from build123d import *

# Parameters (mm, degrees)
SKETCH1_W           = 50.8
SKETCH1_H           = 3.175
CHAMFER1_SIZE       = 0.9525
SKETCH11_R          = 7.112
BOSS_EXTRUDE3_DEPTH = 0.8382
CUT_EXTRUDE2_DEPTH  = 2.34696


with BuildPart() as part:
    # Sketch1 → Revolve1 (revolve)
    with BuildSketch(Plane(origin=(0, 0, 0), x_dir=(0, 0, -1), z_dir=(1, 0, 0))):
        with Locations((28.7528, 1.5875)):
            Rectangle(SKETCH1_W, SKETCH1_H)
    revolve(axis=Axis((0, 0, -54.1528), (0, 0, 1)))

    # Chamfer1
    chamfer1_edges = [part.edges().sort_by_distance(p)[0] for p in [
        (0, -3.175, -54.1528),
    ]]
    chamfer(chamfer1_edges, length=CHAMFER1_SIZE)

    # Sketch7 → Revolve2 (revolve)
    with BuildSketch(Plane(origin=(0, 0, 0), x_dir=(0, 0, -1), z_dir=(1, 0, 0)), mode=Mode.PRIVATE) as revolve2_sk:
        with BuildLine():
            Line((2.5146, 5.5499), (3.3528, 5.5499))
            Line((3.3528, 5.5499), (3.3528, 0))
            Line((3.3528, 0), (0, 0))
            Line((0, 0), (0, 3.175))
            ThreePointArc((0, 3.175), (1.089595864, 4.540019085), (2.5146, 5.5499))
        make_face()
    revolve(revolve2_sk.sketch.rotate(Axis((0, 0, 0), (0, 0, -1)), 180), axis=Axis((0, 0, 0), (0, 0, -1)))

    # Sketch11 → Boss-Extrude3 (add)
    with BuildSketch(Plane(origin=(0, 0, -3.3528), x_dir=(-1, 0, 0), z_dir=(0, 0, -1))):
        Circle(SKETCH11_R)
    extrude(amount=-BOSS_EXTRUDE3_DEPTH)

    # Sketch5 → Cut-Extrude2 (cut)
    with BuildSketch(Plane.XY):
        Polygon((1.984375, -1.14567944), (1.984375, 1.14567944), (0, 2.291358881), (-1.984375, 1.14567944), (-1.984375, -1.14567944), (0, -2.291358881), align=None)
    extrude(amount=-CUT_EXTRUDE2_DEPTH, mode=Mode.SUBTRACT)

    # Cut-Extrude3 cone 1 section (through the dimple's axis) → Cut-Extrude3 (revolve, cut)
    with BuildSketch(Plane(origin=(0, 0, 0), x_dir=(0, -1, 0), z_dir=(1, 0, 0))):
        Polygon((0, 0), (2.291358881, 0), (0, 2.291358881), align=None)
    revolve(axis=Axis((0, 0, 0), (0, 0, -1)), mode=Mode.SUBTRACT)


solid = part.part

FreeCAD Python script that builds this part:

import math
import FreeCAD as App
import Part
import Sketcher
from FreeCAD import Vector
Q = App.Units.Quantity


def edges_at(feature, points):
    """Names of the edges that pass closest to the given points."""
    edges = feature.Shape.Edges
    near = lambda p: min(range(len(edges)), key=lambda i: edges[i].distToShape(Part.Vertex(*p))[0])
    return sorted({f"Edge{near(p) + 1}" for p in points})

doc = App.newDocument("Part")
body = doc.addObject("PartDesign::Body", "Body")

# Sketch on YZ plane
sketch1 = body.newObject("Sketcher::SketchObject", "Sketch")
sketch1.AttachmentSupport = (doc.getObject("YZ_Plane"), [""])
sketch1.MapMode = "FlatFace"
sketch1.addGeometry(Part.LineSegment(Vector(3.2, -3.4, 0), Vector(0, -3.4, 0)), False)
sketch1.addGeometry(Part.LineSegment(Vector(0, -3.4, 0), Vector(0, -54.2, 0)), False)
sketch1.addGeometry(Part.LineSegment(Vector(0, -54.2, 0), Vector(3.2, -54.2, 0)), False)
sketch1.addGeometry(Part.LineSegment(Vector(3.2, -54.2, 0), Vector(3.2, -3.4, 0)), False)
sketch1.addConstraint(Sketcher.Constraint("Coincident", 0, 2, 1, 1))
sketch1.addConstraint(Sketcher.Constraint("Coincident", 1, 2, 2, 1))
sketch1.addConstraint(Sketcher.Constraint("Coincident", 2, 2, 3, 1))
sketch1.addConstraint(Sketcher.Constraint("Coincident", 3, 2, 0, 1))
sketch1.addConstraint(Sketcher.Constraint("Horizontal", 0))
sketch1.addConstraint(Sketcher.Constraint("Vertical", 1))
sketch1.addConstraint(Sketcher.Constraint("Horizontal", 2))
sketch1.addConstraint(Sketcher.Constraint("Vertical", 3))
sketch1.addConstraint(Sketcher.Constraint("PointOnObject", 0, 2, -2))
sketch1.addConstraint(Sketcher.Constraint("DistanceY", 1, 2, 1, 1, Q("2 in")))
sketch1.addConstraint(Sketcher.Constraint("DistanceX", 0, 2, 0, 1, Q("0.125 in")))
sketch1.addConstraint(Sketcher.Constraint("DistanceY", 0, 2, -1, 1, Q("0.132 in")))
revolution = body.newObject("PartDesign::Revolution", "Revolution")
revolution.Profile = sketch1
revolution.ReferenceAxis = (sketch1, ["V_Axis"])
revolution.Angle = 360
doc.recompute()

chamfer = body.newObject("PartDesign::Chamfer", "Chamfer")
chamfer.Base = (revolution, edges_at(revolution, [(0, -3.175, -54.153)]))
chamfer.Size = Q("0.0375 in")

# Sketch on YZ plane
sketch2 = body.newObject("Sketcher::SketchObject", "Sketch001")
sketch2.AttachmentSupport = (doc.getObject("YZ_Plane"), [""])
sketch2.MapMode = "FlatFace"
sketch2.addGeometry(Part.LineSegment(Vector(5.5, -3.4, 0), Vector(5.5, -2.5, 0)), False)
sketch2.addGeometry(Part.ArcOfCircle(Part.Circle(Vector(0, -5.4, 0), Vector(0, 0, 1), 6.2), math.radians(27), math.radians(59)), False)
sketch2.addGeometry(Part.LineSegment(Vector(3.2, 0, 0), Vector(0, 0, 0)), False)
sketch2.addGeometry(Part.LineSegment(Vector(0, 0, 0), Vector(0, -3.4, 0)), False)
sketch2.addGeometry(Part.LineSegment(Vector(0, -3.4, 0), Vector(5.5, -3.4, 0)), False)
sketch2.addConstraint(Sketcher.Constraint("Coincident", 0, 2, 1, 1))
sketch2.addConstraint(Sketcher.Constraint("Coincident", 1, 2, 2, 1))
sketch2.addConstraint(Sketcher.Constraint("Coincident", 2, 2, 3, 1))
sketch2.addConstraint(Sketcher.Constraint("Coincident", 3, 2, 4, 1))
sketch2.addConstraint(Sketcher.Constraint("Coincident", 4, 2, 0, 1))
sketch2.addConstraint(Sketcher.Constraint("Vertical", 0))
sketch2.addConstraint(Sketcher.Constraint("Horizontal", 2))
sketch2.addConstraint(Sketcher.Constraint("Vertical", 3))
sketch2.addConstraint(Sketcher.Constraint("Horizontal", 4))
sketch2.addConstraint(Sketcher.Constraint("Coincident", 2, 2, -1, 1))
sketch2.addConstraint(Sketcher.Constraint("PointOnObject", 1, 3, -2))
sketch2.addConstraint(Sketcher.Constraint("DistanceX", 2, 2, 2, 1, Q("0.125 in")))
sketch2.addConstraint(Sketcher.Constraint("DistanceY", 0, 1, 0, 2, Q("0.033 in")))
sketch2.addConstraint(Sketcher.Constraint("DistanceY", 3, 2, 3, 1, Q("0.132 in")))
sketch2.addConstraint(Sketcher.Constraint("DistanceX", 4, 1, 4, 2, Q("0.2185 in")))
revolution2 = body.newObject("PartDesign::Revolution", "Revolution001")
revolution2.Profile = sketch2
revolution2.ReferenceAxis = (sketch2, ["V_Axis"])
revolution2.Angle = 360

# Sketch on XY plane
sketch3 = body.newObject("Sketcher::SketchObject", "Sketch002")
sketch3.AttachmentSupport = (doc.getObject("XY_Plane"), [""])
sketch3.MapMode = "FlatFace"
sketch3.AttachmentOffset = App.Placement(Vector(0, 0, -0.132 * 25.4), App.Rotation())
sketch3.addGeometry(Part.Circle(Vector(0, 0, 0), Vector(0, 0, 1), 7), False)
sketch3.addConstraint(Sketcher.Constraint("Coincident", 0, 3, -1, 1))
sketch3.addConstraint(Sketcher.Constraint("Diameter", 0, Q("0.56 in")))
pad1 = body.newObject("PartDesign::Pad", "Pad")
pad1.Profile = sketch3
pad1.Length = Q("0.033 in")

# Sketch on XY plane
sketch4 = body.newObject("Sketcher::SketchObject", "Sketch003")
sketch4.AttachmentSupport = (doc.getObject("XY_Plane"), [""])
sketch4.MapMode = "FlatFace"
sketch4.addGeometry(Part.LineSegment(Vector(2, -1.1, 0), Vector(2, 1.1, 0)), False)
sketch4.addGeometry(Part.LineSegment(Vector(2, 1.1, 0), Vector(0, 2.3, 0)), False)
sketch4.addGeometry(Part.LineSegment(Vector(0, 2.3, 0), Vector(-2, 1.1, 0)), False)
sketch4.addGeometry(Part.LineSegment(Vector(-2, 1.1, 0), Vector(-2, -1.1, 0)), False)
sketch4.addGeometry(Part.LineSegment(Vector(-2, -1.1, 0), Vector(0, -2.3, 0)), False)
sketch4.addGeometry(Part.LineSegment(Vector(0, -2.3, 0), Vector(2, -1.1, 0)), False)
sketch4.addConstraint(Sketcher.Constraint("Coincident", 0, 2, 1, 1))
sketch4.addConstraint(Sketcher.Constraint("Coincident", 1, 2, 2, 1))
sketch4.addConstraint(Sketcher.Constraint("Coincident", 2, 2, 3, 1))
sketch4.addConstraint(Sketcher.Constraint("Coincident", 3, 2, 4, 1))
sketch4.addConstraint(Sketcher.Constraint("Coincident", 4, 2, 5, 1))
sketch4.addConstraint(Sketcher.Constraint("Coincident", 5, 2, 0, 1))
sketch4.addConstraint(Sketcher.Constraint("Vertical", 0))
sketch4.addConstraint(Sketcher.Constraint("Vertical", 3))
sketch4.addConstraint(Sketcher.Constraint("Symmetric", 0, 2, 3, 2, -1, 1))
sketch4.addConstraint(Sketcher.Constraint("Symmetric", 1, 2, 4, 2, -1, 1))
sketch4.addConstraint(Sketcher.Constraint("PointOnObject", 1, 2, -2))
sketch4.addConstraint(Sketcher.Constraint("Parallel", 2, 5))
sketch4.addConstraint(Sketcher.Constraint("Horizontal", 0, 2, 2, 2))
sketch4.addConstraint(Sketcher.Constraint("Angle", 1, Q("150 deg")))
sketch4.addConstraint(Sketcher.Constraint("DistanceX", -1, 1, 0, 2, Q("0.078125 in")))
sketch4.addConstraint(Sketcher.Constraint("DistanceY", 0, 1, 0, 2, Q("2.291359 mm")))
pocket1 = body.newObject("PartDesign::Pocket", "Pocket")
pocket1.Profile = sketch4
pocket1.Length = Q("0.0924 in")

# Sketch on YZ plane
sketch5 = body.newObject("Sketcher::SketchObject", "Sketch004")
sketch5.AttachmentSupport = (doc.getObject("YZ_Plane"), [""])
sketch5.MapMode = "FlatFace"
sketch5.addGeometry(Part.LineSegment(Vector(0, 0, 0), Vector(-2.3, 0, 0)), False)
sketch5.addGeometry(Part.LineSegment(Vector(-2.3, 0, 0), Vector(0, -2.3, 0)), False)
sketch5.addGeometry(Part.LineSegment(Vector(0, -2.3, 0), Vector(0, 0, 0)), False)
sketch5.addConstraint(Sketcher.Constraint("Coincident", 0, 2, 1, 1))
sketch5.addConstraint(Sketcher.Constraint("Coincident", 1, 2, 2, 1))
sketch5.addConstraint(Sketcher.Constraint("Coincident", 2, 2, 0, 1))
sketch5.addConstraint(Sketcher.Constraint("Horizontal", 0))
sketch5.addConstraint(Sketcher.Constraint("Vertical", 2))
sketch5.addConstraint(Sketcher.Constraint("Coincident", 2, 2, -1, 1))
sketch5.addConstraint(Sketcher.Constraint("Equal", 0, 2))
sketch5.addConstraint(Sketcher.Constraint("DistanceX", 0, 2, 0, 1, Q("2.291359 mm")))
groove = body.newObject("PartDesign::Groove", "Groove")
groove.Profile = sketch5
groove.ReferenceAxis = (sketch5, ["V_Axis"])
groove.Angle = 360

doc.recompute()
